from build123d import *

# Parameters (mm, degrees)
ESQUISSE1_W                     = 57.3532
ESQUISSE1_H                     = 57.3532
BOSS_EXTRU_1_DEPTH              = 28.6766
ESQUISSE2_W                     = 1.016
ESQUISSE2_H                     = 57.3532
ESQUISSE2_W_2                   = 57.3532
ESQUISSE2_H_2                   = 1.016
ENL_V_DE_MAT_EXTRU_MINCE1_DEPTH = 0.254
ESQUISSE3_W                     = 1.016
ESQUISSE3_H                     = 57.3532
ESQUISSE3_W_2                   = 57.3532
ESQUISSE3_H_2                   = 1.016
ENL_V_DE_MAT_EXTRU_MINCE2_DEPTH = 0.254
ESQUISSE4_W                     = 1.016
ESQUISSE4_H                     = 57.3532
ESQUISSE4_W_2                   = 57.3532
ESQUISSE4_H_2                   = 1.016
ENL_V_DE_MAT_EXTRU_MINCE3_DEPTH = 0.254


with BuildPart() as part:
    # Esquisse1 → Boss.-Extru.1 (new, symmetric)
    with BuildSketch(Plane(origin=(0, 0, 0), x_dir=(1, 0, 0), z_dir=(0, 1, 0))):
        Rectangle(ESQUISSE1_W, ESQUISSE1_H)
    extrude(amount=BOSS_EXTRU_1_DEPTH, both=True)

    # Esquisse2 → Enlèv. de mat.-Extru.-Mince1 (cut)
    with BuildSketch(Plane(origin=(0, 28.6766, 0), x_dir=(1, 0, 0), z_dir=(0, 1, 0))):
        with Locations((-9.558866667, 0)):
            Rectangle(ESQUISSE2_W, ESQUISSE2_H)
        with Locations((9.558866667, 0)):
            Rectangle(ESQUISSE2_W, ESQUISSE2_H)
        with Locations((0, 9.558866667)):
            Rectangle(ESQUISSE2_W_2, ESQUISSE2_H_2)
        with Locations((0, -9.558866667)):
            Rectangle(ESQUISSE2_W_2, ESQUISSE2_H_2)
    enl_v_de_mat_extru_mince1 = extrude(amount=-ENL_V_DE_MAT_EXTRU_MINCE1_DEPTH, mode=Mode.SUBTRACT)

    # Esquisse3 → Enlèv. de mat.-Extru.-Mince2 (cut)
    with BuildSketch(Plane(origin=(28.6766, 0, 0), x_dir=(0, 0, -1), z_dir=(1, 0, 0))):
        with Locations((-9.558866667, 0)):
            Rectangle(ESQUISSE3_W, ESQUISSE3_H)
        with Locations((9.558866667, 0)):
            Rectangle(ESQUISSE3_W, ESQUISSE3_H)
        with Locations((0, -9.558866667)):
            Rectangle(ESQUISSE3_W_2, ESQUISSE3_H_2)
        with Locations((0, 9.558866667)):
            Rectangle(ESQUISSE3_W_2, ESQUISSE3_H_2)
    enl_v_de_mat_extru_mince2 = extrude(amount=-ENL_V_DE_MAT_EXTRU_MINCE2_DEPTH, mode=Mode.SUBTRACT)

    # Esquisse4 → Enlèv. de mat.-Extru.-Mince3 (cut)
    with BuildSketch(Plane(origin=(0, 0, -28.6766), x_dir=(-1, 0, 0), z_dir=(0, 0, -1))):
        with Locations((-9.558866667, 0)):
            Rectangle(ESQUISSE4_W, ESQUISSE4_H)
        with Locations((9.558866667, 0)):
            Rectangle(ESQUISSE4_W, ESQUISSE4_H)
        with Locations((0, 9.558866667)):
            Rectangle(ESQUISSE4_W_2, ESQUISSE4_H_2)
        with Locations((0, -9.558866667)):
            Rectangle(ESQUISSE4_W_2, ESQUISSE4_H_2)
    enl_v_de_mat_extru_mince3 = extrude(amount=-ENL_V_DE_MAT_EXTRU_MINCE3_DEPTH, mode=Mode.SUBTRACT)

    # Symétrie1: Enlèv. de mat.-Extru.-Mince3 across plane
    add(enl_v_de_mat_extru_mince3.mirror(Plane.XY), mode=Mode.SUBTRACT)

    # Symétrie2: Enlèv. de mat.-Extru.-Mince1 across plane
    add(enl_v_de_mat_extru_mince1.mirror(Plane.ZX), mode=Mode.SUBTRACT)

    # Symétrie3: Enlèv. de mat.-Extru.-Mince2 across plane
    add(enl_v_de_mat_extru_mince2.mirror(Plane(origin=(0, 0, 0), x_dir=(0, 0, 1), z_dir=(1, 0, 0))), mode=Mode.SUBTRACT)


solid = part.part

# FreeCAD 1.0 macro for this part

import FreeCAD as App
import Part
import Sketcher
Q = App.Units.Quantity

doc = App.newDocument("Part")
body = doc.addObject("PartDesign::Body", "Body")

# Sketch on XZ plane
sketch1 = doc.addObject("Sketcher::SketchObject", "Sketch")
body.addObject(sketch1)
sketch1.AttachmentSupport = (doc.XZ_Plane, [""])
sketch1.MapMode = "FlatFace"
sketch1.addGeometry(Part.LineSegment(App.Vector(-29, -29, 0), App.Vector(-29, 29, 0)), False)
sketch1.addGeometry(Part.LineSegment(App.Vector(-29, 29, 0), App.Vector(29, 29, 0)), False)
sketch1.addGeometry(Part.LineSegment(App.Vector(29, 29, 0), App.Vector(29, -29, 0)), False)
sketch1.addGeometry(Part.LineSegment(App.Vector(29, -29, 0), App.Vector(-29, -29, 0)), False)
sketch1.addConstraint(Sketcher.Constraint("Coincident", 0, 2, 1, 1))
sketch1.addConstraint(Sketcher.Constraint("Coincident", 1, 2, 2, 1))
sketch1.addConstraint(Sketcher.Constraint("Coincident", 2, 2, 3, 1))
sketch1.addConstraint(Sketcher.Constraint("Coincident", 3, 2, 0, 1))
sketch1.addConstraint(Sketcher.Constraint("Vertical", 0))
sketch1.addConstraint(Sketcher.Constraint("Horizontal", 1))
sketch1.addConstraint(Sketcher.Constraint("Vertical", 2))
sketch1.addConstraint(Sketcher.Constraint("Horizontal", 3))
sketch1.addConstraint(Sketcher.Constraint("Symmetric", 0, 2, 2, 2, -1, 1))
sketch1.addConstraint(Sketcher.Constraint("Equal", 3, 0))
sketch1.addConstraint(Sketcher.Constraint("DistanceX", 1, 1, 1, 2, Q("2.258 in")))
pad1 = doc.addObject("PartDesign::Pad", "Pad")
body.addObject(pad1)
pad1.Profile = sketch1
pad1.Length = Q("2.258 in")
pad1.Midplane = True

# Sketch on XZ plane
sketch2 = doc.addObject("Sketcher::SketchObject", "Sketch001")
body.addObject(sketch2)
sketch2.AttachmentSupport = (doc.XZ_Plane, [""])
sketch2.MapMode = "FlatFace"
sketch2.AttachmentOffset = App.Placement(App.Vector(0, 0, -1.129 * 25.4), App.Rotation())
sketch2.addGeometry(Part.LineSegment(App.Vector(-10.1, 10.1, 0), App.Vector(-10.1, 28.7, 0)), False)
sketch2.addGeometry(Part.LineSegment(App.Vector(-10.1, 28.7, 0), App.Vector(-9.1, 28.7, 0)), False)
sketch2.addGeometry(Part.LineSegment(App.Vector(-9.1, 28.7, 0), App.Vector(-9.1, 10.1, 0)), False)
sketch2.addGeometry(Part.LineSegment(App.Vector(-9.1, 10.1, 0), App.Vector(9.1, 10.1, 0)), False)
sketch2.addGeometry(Part.LineSegment(App.Vector(9.1, 10.1, 0), App.Vector(9.1, 28.7, 0)), False)
sketch2.addGeometry(Part.LineSegment(App.Vector(9.1, 28.7, 0), App.Vector(10.1, 28.7, 0)), False)
sketch2.addGeometry(Part.LineSegment(App.Vector(10.1, 28.7, 0), App.Vector(10.1, 10.1, 0)), False)
sketch2.addGeometry(Part.LineSegment(App.Vector(10.1, 10.1, 0), App.Vector(28.7, 10.1, 0)), False)
sketch2.addGeometry(Part.LineSegment(App.Vector(28.7, 10.1, 0), App.Vector(28.7, 9.1, 0)), False)
sketch2.addGeometry(Part.LineSegment(App.Vector(28.7, 9.1, 0), App.Vector(10.1, 9.1, 0)), False)
sketch2.addGeometry(Part.LineSegment(App.Vector(10.1, 9.1, 0), App.Vector(10.1, -9.1, 0)), False)
sketch2.addGeometry(Part.LineSegment(App.Vector(10.1, -9.1, 0), App.Vector(28.7, -9.1, 0)), False)
sketch2.addGeometry(Part.LineSegment(App.Vector(28.7, -9.1, 0), App.Vector(28.7, -10.1, 0)), False)
sketch2.addGeometry(Part.LineSegment(App.Vector(28.7, -10.1, 0), App.Vector(10.1, -10.1, 0)), False)
sketch2.addGeometry(Part.LineSegment(App.Vector(10.1, -10.1, 0), App.Vector(10.1, -28.7, 0)), False)
sketch2.addGeometry(Part.LineSegment(App.Vector(10.1, -28.7, 0), App.Vector(9.1, -28.7, 0)), False)
sketch2.addGeometry(Part.LineSegment(App.Vector(9.1, -28.7, 0), App.Vector(9.1, -10.1, 0)), False)
sketch2.addGeometry(Part.LineSegment(App.Vector(9.1, -10.1, 0), App.Vector(-9.1, -10.1, 0)), False)
sketch2.addGeometry(Part.LineSegment(App.Vector(-9.1, -10.1, 0), App.Vector(-9.1, -28.7, 0)), False)
sketch2.addGeometry(Part.LineSegment(App.Vector(-9.1, -28.7, 0), App.Vector(-10.1, -28.7, 0)), False)
sketch2.addGeometry(Part.LineSegment(App.Vector(-10.1, -28.7, 0), App.Vector(-10.1, -10.1, 0)), False)
sketch2.addGeometry(Part.LineSegment(App.Vector(-10.1, -10.1, 0), App.Vector(-28.7, -10.1, 0)), False)
sketch2.addGeometry(Part.LineSegment(App.Vector(-28.7, -10.1, 0), App.Vector(-28.7, -9.1, 0)), False)
sketch2.addGeometry(Part.LineSegment(App.Vector(-28.7, -9.1, 0), App.Vector(-10.1, -9.1, 0)), False)
sketch2.addGeometry(Part.LineSegment(App.Vector(-10.1, -9.1, 0), App.Vector(-10.1, 9.1, 0)), False)
sketch2.addGeometry(Part.LineSegment(App.Vector(-10.1, 9.1, 0), App.Vector(-28.7, 9.1, 0)), False)
sketch2.addGeometry(Part.LineSegment(App.Vector(-28.7, 9.1, 0), App.Vector(-28.7, 10.1, 0)), False)
sketch2.addGeometry(Part.LineSegment(App.Vector(-28.7, 10.1, 0), App.Vector(-10.1, 10.1, 0)), False)
sketch2.addGeometry(Part.LineSegment(App.Vector(9.1, -9.1, 0), App.Vector(9.1, 9.1, 0)), False)
sketch2.addGeometry(Part.LineSegment(App.Vector(9.1, 9.1, 0), App.Vector(-9.1, 9.1, 0)), False)
sketch2.addGeometry(Part.LineSegment(App.Vector(-9.1, 9.1, 0), App.Vector(-9.1, -9.1, 0)), False)
sketch2.addGeometry(Part.LineSegment(App.Vector(-9.1, -9.1, 0), App.Vector(9.1, -9.1, 0)), False)
sketch2.addConstraint(Sketcher.Constraint("Coincident", 0, 2, 1, 1))
sketch2.addConstraint(Sketcher.Constraint("Coincident", 1, 2, 2, 1))
sketch2.addConstraint(Sketcher.Constraint("Coincident", 2, 2, 3, 1))
sketch2.addConstraint(Sketcher.Constraint("Coincident", 3, 2, 4, 1))
sketch2.addConstraint(Sketcher.Constraint("Coincident", 4, 2, 5, 1))
sketch2.addConstraint(Sketcher.Constraint("Coincident", 5, 2, 6, 1))
sketch2.addConstraint(Sketcher.Constraint("Coincident", 6, 2, 7, 1))
sketch2.addConstraint(Sketcher.Constraint("Coincident", 7, 2, 8, 1))
sketch2.addConstraint(Sketcher.Constraint("Coincident", 8, 2, 9, 1))
sketch2.addConstraint(Sketcher.Constraint("Coincident", 9, 2, 10, 1))
sketch2.addConstraint(Sketcher.Constraint("Coincident", 10, 2, 11, 1))
sketch2.addConstraint(Sketcher.Constraint("Coincident", 11, 2, 12, 1))
sketch2.addConstraint(Sketcher.Constraint("Coincident", 12, 2, 13, 1))
sketch2.addConstraint(Sketcher.Constraint("Coincident", 13, 2, 14, 1))
sketch2.addConstraint(Sketcher.Constraint("Coincident", 14, 2, 15, 1))
sketch2.addConstraint(Sketcher.Constraint("Coincident", 15, 2, 16, 1))
sketch2.addConstraint(Sketcher.Constraint("Coincident", 16, 2, 17, 1))
sketch2.addConstraint(Sketcher.Constraint("Coincident", 17, 2, 18, 1))
sketch2.addConstraint(Sketcher.Constraint("Coincident", 18, 2, 19, 1))
sketch2.addConstraint(Sketcher.Constraint("Coincident", 19, 2, 20, 1))
sketch2.addConstraint(Sketcher.Constraint("Coincident", 20, 2, 21, 1))
sketch2.addConstraint(Sketcher.Constraint("Coincident", 21, 2, 22, 1))
sketch2.addConstraint(Sketcher.Constraint("Coincident", 22, 2, 23, 1))
sketch2.addConstraint(Sketcher.Constraint("Coincident", 23, 2, 24, 1))
sketch2.addConstraint(Sketcher.Constraint("Coincident", 24, 2, 25, 1))
sketch2.addConstraint(Sketcher.Constraint("Coincident", 25, 2, 26, 1))
sketch2.addConstraint(Sketcher.Constraint("Coincident", 26, 2, 27, 1))
sketch2.addConstraint(Sketcher.Constraint("Coincident", 27, 2, 0, 1))
sketch2.addConstraint(Sketcher.Constraint("Coincident", 28, 2, 29, 1))
sketch2.addConstraint(Sketcher.Constraint("Coincident", 29, 2, 30, 1))
sketch2.addConstraint(Sketcher.Constraint("Coincident", 30, 2, 31, 1))
sketch2.addConstraint(Sketcher.Constraint("Coincident", 31, 2, 28, 1))
sketch2.addConstraint(Sketcher.Constraint("Vertical", 0))
sketch2.addConstraint(Sketcher.Constraint("Horizontal", 1))
sketch2.addConstraint(Sketcher.Constraint("Vertical", 2))
sketch2.addConstraint(Sketcher.Constraint("Horizontal", 3))
sketch2.addConstraint(Sketcher.Constraint("Vertical", 4))
sketch2.addConstraint(Sketcher.Constraint("Horizontal", 5))
sketch2.addConstraint(Sketcher.Constraint("Vertical", 6))
sketch2.addConstraint(Sketcher.Constraint("Horizontal", 7))
sketch2.addConstraint(Sketcher.Constraint("Vertical", 8))
sketch2.addConstraint(Sketcher.Constraint("Horizontal", 9))
sketch2.addConstraint(Sketcher.Constraint("Vertical", 10))
sketch2.addConstraint(Sketcher.Constraint("Horizontal", 11))
sketch2.addConstraint(Sketcher.Constraint("Vertical", 12))
sketch2.addConstraint(Sketcher.Constraint("Horizontal", 13))
sketch2.addConstraint(Sketcher.Constraint("Vertical", 14))
sketch2.addConstraint(Sketcher.Constraint("Horizontal", 15))
sketch2.addConstraint(Sketcher.Constraint("Vertical", 16))
sketch2.addConstraint(Sketcher.Constraint("Horizontal", 17))
sketch2.addConstraint(Sketcher.Constraint("Vertical", 18))
sketch2.addConstraint(Sketcher.Constraint("Horizontal", 19))
sketch2.addConstraint(Sketcher.Constraint("Vertical", 20))
sketch2.addConstraint(Sketcher.Constraint("Horizontal", 21))
sketch2.addConstraint(Sketcher.Constraint("Vertical", 22))
sketch2.addConstraint(Sketcher.Constraint("Horizontal", 23))
sketch2.addConstraint(Sketcher.Constraint("Vertical", 24))
sketch2.addConstraint(Sketcher.Constraint("Horizontal", 25))
sketch2.addConstraint(Sketcher.Constraint("Vertical", 26))
sketch2.addConstraint(Sketcher.Constraint("Horizontal", 27))
sketch2.addConstraint(Sketcher.Constraint("Vertical", 28))
sketch2.addConstraint(Sketcher.Constraint("Horizontal", 29))
sketch2.addConstraint(Sketcher.Constraint("Vertical", 30))
sketch2.addConstraint(Sketcher.Constraint("Horizontal", 31))
sketch2.addConstraint(Sketcher.Constraint("Symmetric", 0, 2, 14, 2, -1, 1))
sketch2.addConstraint(Sketcher.Constraint("Symmetric", 2, 2, 16, 2, -1, 1))
sketch2.addConstraint(Sketcher.Constraint("Symmetric", 4, 2, 18, 2, -1, 1))
sketch2.addConstraint(Sketcher.Constraint("Symmetric", 6, 2, 20, 2, -1, 1))
sketch2.addConstraint(Sketcher.Constraint("Symmetric", 8, 2, 22, 2, -1, 1))
sketch2.addConstraint(Sketcher.Constraint("Symmetric", 10, 2, 24, 2, -1, 1))
sketch2.addConstraint(Sketcher.Constraint("Symmetric", 12, 2, 26, 2, -1, 1))
sketch2.addConstraint(Sketcher.Constraint("Symmetric", 28, 2, 30, 2, -1, 1))
sketch2.addConstraint(Sketcher.Constraint("Symmetric", 1, 2, 4, 2, -2))
sketch2.addConstraint(Sketcher.Constraint("Symmetric", 13, 2, 20, 2, -2))
sketch2.addConstraint(Sketcher.Constraint("Symmetric", 11, 2, 22, 2, -2))
sketch2.addConstraint(Sketcher.Constraint("Horizontal", 3, 2, 6, 2))
sketch2.addConstraint(Sketcher.Constraint("Horizontal", 25, 2, 28, 2))
sketch2.addConstraint(Sketcher.Constraint("Vertical", 6, 2, 9, 2))
sketch2.addConstraint(Sketcher.Constraint("Vertical", 16, 2, 28, 2))
sketch2.addConstraint(Sketcher.Constraint("Equal", 27, 0))
sketch2.addConstraint(Sketcher.Constraint("Equal", 19, 8))
sketch2.addConstraint(Sketcher.Constraint("Equal", 31, 10))
sketch2.addConstraint(Sketcher.Constraint("DistanceX", 1, 1, 1, 2, Q("0.04 in")))
sketch2.addConstraint(Sketcher.Constraint("DistanceY", -1, 1, 0, 2, Q("1.129 in")))
sketch2.addConstraint(Sketcher.Constraint("DistanceX", 3, 1, 3, 2, Q("18.101733 mm")))
pocket1 = doc.addObject("PartDesign::Pocket", "Pocket")
body.addObject(pocket1)
pocket1.Profile = sketch2
pocket1.Length = Q("0.01 in")
pocket1.Reversed = True

# Sketch on YZ plane
sketch3 = doc.addObject("Sketcher::SketchObject", "Sketch002")
body.addObject(sketch3)
sketch3.AttachmentSupport = (doc.YZ_Plane, [""])
sketch3.MapMode = "FlatFace"
sketch3.AttachmentOffset = App.Placement(App.Vector(0, 0, 1.129 * 25.4), App.Rotation())
sketch3.addGeometry(Part.LineSegment(App.Vector(-10.1, 10.1, 0), App.Vector(-28.7, 10.1, 0)), False)
sketch3.addGeometry(Part.LineSegment(App.Vector(-28.7, 10.1, 0), App.Vector(-28.7, 9.1, 0)), False)
sketch3.addGeometry(Part.LineSegment(App.Vector(-28.7, 9.1, 0), App.Vector(-10.1, 9.1, 0)), False)
sketch3.addGeometry(Part.LineSegment(App.Vector(-10.1, 9.1, 0), App.Vector(-10.1, -9.1, 0)), False)
sketch3.addGeometry(Part.LineSegment(App.Vector(-10.1, -9.1, 0), App.Vector(-28.7, -9.1, 0)), False)
sketch3.addGeometry(Part.LineSegment(App.Vector(-28.7, -9.1, 0), App.Vector(-28.7, -10.1, 0)), False)
sketch3.addGeometry(Part.LineSegment(App.Vector(-28.7, -10.1, 0), App.Vector(-10.1, -10.1, 0)), False)
sketch3.addGeometry(Part.LineSegment(App.Vector(-10.1, -10.1, 0), App.Vector(-10.1, -28.7, 0)), False)
sketch3.addGeometry(Part.LineSegment(App.Vector(-10.1, -28.7, 0), App.Vector(-9.1, -28.7, 0)), False)
sketch3.addGeometry(Part.LineSegment(App.Vector(-9.1, -28.7, 0), App.Vector(-9.1, -10.1, 0)), False)
sketch3.addGeometry(Part.LineSegment(App.Vector(-9.1, -10.1, 0), App.Vector(9.1, -10.1, 0)), False)
sketch3.addGeometry(Part.LineSegment(App.Vector(9.1, -10.1, 0), App.Vector(9.1, -28.7, 0)), False)
sketch3.addGeometry(Part.LineSegment(App.Vector(9.1, -28.7, 0), App.Vector(10.1, -28.7, 0)), False)
sketch3.addGeometry(Part.LineSegment(App.Vector(10.1, -28.7, 0), App.Vector(10.1, -10.1, 0)), False)
sketch3.addGeometry(Part.LineSegment(App.Vector(10.1, -10.1, 0), App.Vector(28.7, -10.1, 0)), False)
sketch3.addGeometry(Part.LineSegment(App.Vector(28.7, -10.1, 0), App.Vector(28.7, -9.1, 0)), False)
sketch3.addGeometry(Part.LineSegment(App.Vector(28.7, -9.1, 0), App.Vector(10.1, -9.1, 0)), False)
sketch3.addGeometry(Part.LineSegment(App.Vector(10.1, -9.1, 0), App.Vector(10.1, 9.1, 0)), False)
sketch3.addGeometry(Part.LineSegment(App.Vector(10.1, 9.1, 0), App.Vector(28.7, 9.1, 0)), False)
sketch3.addGeometry(Part.LineSegment(App.Vector(28.7, 9.1, 0), App.Vector(28.7, 10.1, 0)), False)
sketch3.addGeometry(Part.LineSegment(App.Vector(28.7, 10.1, 0), App.Vector(10.1, 10.1, 0)), False)
sketch3.addGeometry(Part.LineSegment(App.Vector(10.1, 10.1, 0), App.Vector(10.1, 28.7, 0)), False)
sketch3.addGeometry(Part.LineSegment(App.Vector(10.1, 28.7, 0), App.Vector(9.1, 28.7, 0)), False)
sketch3.addGeometry(Part.LineSegment(App.Vector(9.1, 28.7, 0), App.Vector(9.1, 10.1, 0)), False)
sketch3.addGeometry(Part.LineSegment(App.Vector(9.1, 10.1, 0), App.Vector(-9.1, 10.1, 0)), False)
sketch3.addGeometry(Part.LineSegment(App.Vector(-9.1, 10.1, 0), App.Vector(-9.1, 28.7, 0)), False)
sketch3.addGeometry(Part.LineSegment(App.Vector(-9.1, 28.7, 0), App.Vector(-10.1, 28.7, 0)), False)
sketch3.addGeometry(Part.LineSegment(App.Vector(-10.1, 28.7, 0), App.Vector(-10.1, 10.1, 0)), False)
sketch3.addGeometry(Part.LineSegment(App.Vector(-9.1, 9.1, 0), App.Vector(9.1, 9.1, 0)), False)
sketch3.addGeometry(Part.LineSegment(App.Vector(9.1, 9.1, 0), App.Vector(9.1, -9.1, 0)), False)
sketch3.addGeometry(Part.LineSegment(App.Vector(9.1, -9.1, 0), App.Vector(-9.1, -9.1, 0)), False)
sketch3.addGeometry(Part.LineSegment(App.Vector(-9.1, -9.1, 0), App.Vector(-9.1, 9.1, 0)), False)
sketch3.addConstraint(Sketcher.Constraint("Coincident", 0, 2, 1, 1))
sketch3.addConstraint(Sketcher.Constraint("Coincident", 1, 2, 2, 1))
sketch3.addConstraint(Sketcher.Constraint("Coincident", 2, 2, 3, 1))
sketch3.addConstraint(Sketcher.Constraint("Coincident", 3, 2, 4, 1))
sketch3.addConstraint(Sketcher.Constraint("Coincident", 4, 2, 5, 1))
sketch3.addConstraint(Sketcher.Constraint("Coincident", 5, 2, 6, 1))
sketch3.addConstraint(Sketcher.Constraint("Coincident", 6, 2, 7, 1))
sketch3.addConstraint(Sketcher.Constraint("Coincident", 7, 2, 8, 1))
sketch3.addConstraint(Sketcher.Constraint("Coincident", 8, 2, 9, 1))
sketch3.addConstraint(Sketcher.Constraint("Coincident", 9, 2, 10, 1))
sketch3.addConstraint(Sketcher.Constraint("Coincident", 10, 2, 11, 1))
sketch3.addConstraint(Sketcher.Constraint("Coincident", 11, 2, 12, 1))
sketch3.addConstraint(Sketcher.Constraint("Coincident", 12, 2, 13, 1))
sketch3.addConstraint(Sketcher.Constraint("Coincident", 13, 2, 14, 1))
sketch3.addConstraint(Sketcher.Constraint("Coincident", 14, 2, 15, 1))
sketch3.addConstraint(Sketcher.Constraint("Coincident", 15, 2, 16, 1))
sketch3.addConstraint(Sketcher.Constraint("Coincident", 16, 2, 17, 1))
sketch3.addConstraint(Sketcher.Constraint("Coincident", 17, 2, 18, 1))
sketch3.addConstraint(Sketcher.Constraint("Coincident", 18, 2, 19, 1))
sketch3.addConstraint(Sketcher.Constraint("Coincident", 19, 2, 20, 1))
sketch3.addConstraint(Sketcher.Constraint("Coincident", 20, 2, 21, 1))
sketch3.addConstraint(Sketcher.Constraint("Coincident", 21, 2, 22, 1))
sketch3.addConstraint(Sketcher.Constraint("Coincident", 22, 2, 23, 1))
sketch3.addConstraint(Sketcher.Constraint("Coincident", 23, 2, 24, 1))
sketch3.addConstraint(Sketcher.Constraint("Coincident", 24, 2, 25, 1))
sketch3.addConstraint(Sketcher.Constraint("Coincident", 25, 2, 26, 1))
sketch3.addConstraint(Sketcher.Constraint("Coincident", 26, 2, 27, 1))
sketch3.addConstraint(Sketcher.Constraint("Coincident", 27, 2, 0, 1))
sketch3.addConstraint(Sketcher.Constraint("Coincident", 28, 2, 29, 1))
sketch3.addConstraint(Sketcher.Constraint("Coincident", 29, 2, 30, 1))
sketch3.addConstraint(Sketcher.Constraint("Coincident", 30, 2, 31, 1))
sketch3.addConstraint(Sketcher.Constraint("Coincident", 31, 2, 28, 1))
sketch3.addConstraint(Sketcher.Constraint("Horizontal", 0))
sketch3.addConstraint(Sketcher.Constraint("Vertical", 1))
sketch3.addConstraint(Sketcher.Constraint("Horizontal", 2))
sketch3.addConstraint(Sketcher.Constraint("Vertical", 3))
sketch3.addConstraint(Sketcher.Constraint("Horizontal", 4))
sketch3.addConstraint(Sketcher.Constraint("Vertical", 5))
sketch3.addConstraint(Sketcher.Constraint("Horizontal", 6))
sketch3.addConstraint(Sketcher.Constraint("Vertical", 7))
sketch3.addConstraint(Sketcher.Constraint("Horizontal", 8))
sketch3.addConstraint(Sketcher.Constraint("Vertical", 9))
sketch3.addConstraint(Sketcher.Constraint("Horizontal", 10))
sketch3.addConstraint(Sketcher.Constraint("Vertical", 11))
sketch3.addConstraint(Sketcher.Constraint("Horizontal", 12))
sketch3.addConstraint(Sketcher.Constraint("Vertical", 13))
sketch3.addConstraint(Sketcher.Constraint("Horizontal", 14))
sketch3.addConstraint(Sketcher.Constraint("Vertical", 15))
sketch3.addConstraint(Sketcher.Constraint("Horizontal", 16))
sketch3.addConstraint(Sketcher.Constraint("Vertical", 17))
sketch3.addConstraint(Sketcher.Constraint("Horizontal", 18))
sketch3.addConstraint(Sketcher.Constraint("Vertical", 19))
sketch3.addConstraint(Sketcher.Constraint("Horizontal", 20))
sketch3.addConstraint(Sketcher.Constraint("Vertical", 21))
sketch3.addConstraint(Sketcher.Constraint("Horizontal", 22))
sketch3.addConstraint(Sketcher.Constraint("Vertical", 23))
sketch3.addConstraint(Sketcher.Constraint("Horizontal", 24))
sketch3.addConstraint(Sketcher.Constraint("Vertical", 25))
sketch3.addConstraint(Sketcher.Constraint("Horizontal", 26))
sketch3.addConstraint(Sketcher.Constraint("Vertical", 27))
sketch3.addConstraint(Sketcher.Constraint("Horizontal", 28))
sketch3.addConstraint(Sketcher.Constraint("Vertical", 29))
sketch3.addConstraint(Sketcher.Constraint("Horizontal", 30))
sketch3.addConstraint(Sketcher.Constraint("Vertical", 31))
sketch3.addConstraint(Sketcher.Constraint("Symmetric", 0, 2, 14, 2, -1, 1))
sketch3.addConstraint(Sketcher.Constraint("Symmetric", 2, 2, 16, 2, -1, 1))
sketch3.addConstraint(Sketcher.Constraint("Symmetric", 4, 2, 18, 2, -1, 1))
sketch3.addConstraint(Sketcher.Constraint("Symmetric", 6, 2, 20, 2, -1, 1))
sketch3.addConstraint(Sketcher.Constraint("Symmetric", 8, 2, 22, 2, -1, 1))
sketch3.addConstraint(Sketcher.Constraint("Symmetric", 10, 2, 24, 2, -1, 1))
sketch3.addConstraint(Sketcher.Constraint("Symmetric", 12, 2, 26, 2, -1, 1))
sketch3.addConstraint(Sketcher.Constraint("Symmetric", 28, 2, 30, 2, -1, 1))
sketch3.addConstraint(Sketcher.Constraint("Symmetric", 8, 2, 11, 2, -2))
sketch3.addConstraint(Sketcher.Constraint("Symmetric", 6, 2, 13, 2, -2))
sketch3.addConstraint(Sketcher.Constraint("Symmetric", 4, 2, 15, 2, -2))
sketch3.addConstraint(Sketcher.Constraint("Horizontal", 6, 2, 9, 2))
sketch3.addConstraint(Sketcher.Constraint("Horizontal", 18, 2, 28, 2))
sketch3.addConstraint(Sketcher.Constraint("Vertical", 3, 2, 6, 2))
sketch3.addConstraint(Sketcher.Constraint("Vertical", 23, 2, 28, 2))
sketch3.addConstraint(Sketcher.Constraint("Equal", 26, 1))
sketch3.addConstraint(Sketcher.Constraint("Equal", 30, 3))
sketch3.addConstraint(Sketcher.Constraint("Equal", 20, 7))
sketch3.addConstraint(Sketcher.Constraint("DistanceX", 8, 1, 8, 2, Q("0.04 in")))
sketch3.addConstraint(Sketcher.Constraint("DistanceX", 0, 2, -1, 1, Q("1.129 in")))
sketch3.addConstraint(Sketcher.Constraint("DistanceX", 0, 2, 0, 1, Q("18.609733 mm")))
pocket2 = doc.addObject("PartDesign::Pocket", "Pocket001")
body.addObject(pocket2)
pocket2.Profile = sketch3
pocket2.Length = Q("0.01 in")

# Sketch on XY plane
sketch4 = doc.addObject("Sketcher::SketchObject", "Sketch003")
body.addObject(sketch4)
sketch4.AttachmentSupport = (doc.XY_Plane, [""])
sketch4.MapMode = "FlatFace"
sketch4.AttachmentOffset = App.Placement(App.Vector(0, 0, -1.129 * 25.4), App.Rotation())
sketch4.addGeometry(Part.LineSegment(App.Vector(10.1, -10.1, 0), App.Vector(10.1, -28.7, 0)), False)
sketch4.addGeometry(Part.LineSegment(App.Vector(10.1, -28.7, 0), App.Vector(9.1, -28.7, 0)), False)
sketch4.addGeometry(Part.LineSegment(App.Vector(9.1, -28.7, 0), App.Vector(9.1, -10.1, 0)), False)
sketch4.addGeometry(Part.LineSegment(App.Vector(9.1, -10.1, 0), App.Vector(-9.1, -10.1, 0)), False)
sketch4.addGeometry(Part.LineSegment(App.Vector(-9.1, -10.1, 0), App.Vector(-9.1, -28.7, 0)), False)
sketch4.addGeometry(Part.LineSegment(App.Vector(-9.1, -28.7, 0), App.Vector(-10.1, -28.7, 0)), False)
sketch4.addGeometry(Part.LineSegment(App.Vector(-10.1, -28.7, 0), App.Vector(-10.1, -10.1, 0)), False)
sketch4.addGeometry(Part.LineSegment(App.Vector(-10.1, -10.1, 0), App.Vector(-28.7, -10.1, 0)), False)
sketch4.addGeometry(Part.LineSegment(App.Vector(-28.7, -10.1, 0), App.Vector(-28.7, -9.1, 0)), False)
sketch4.addGeometry(Part.LineSegment(App.Vector(-28.7, -9.1, 0), App.Vector(-10.1, -9.1, 0)), False)
sketch4.addGeometry(Part.LineSegment(App.Vector(-10.1, -9.1, 0), App.Vector(-10.1, 9.1, 0)), False)
sketch4.addGeometry(Part.LineSegment(App.Vector(-10.1, 9.1, 0), App.Vector(-28.7, 9.1, 0)), False)
sketch4.addGeometry(Part.LineSegment(App.Vector(-28.7, 9.1, 0), App.Vector(-28.7, 10.1, 0)), False)
sketch4.addGeometry(Part.LineSegment(App.Vector(-28.7, 10.1, 0), App.Vector(-10.1, 10.1, 0)), False)
sketch4.addGeometry(Part.LineSegment(App.Vector(-10.1, 10.1, 0), App.Vector(-10.1, 28.7, 0)), False)
sketch4.addGeometry(Part.LineSegment(App.Vector(-10.1, 28.7, 0), App.Vector(-9.1, 28.7, 0)), False)
sketch4.addGeometry(Part.LineSegment(App.Vector(-9.1, 28.7, 0), App.Vector(-9.1, 10.1, 0)), False)
sketch4.addGeometry(Part.LineSegment(App.Vector(-9.1, 10.1, 0), App.Vector(9.1, 10.1, 0)), False)
sketch4.addGeometry(Part.LineSegment(App.Vector(9.1, 10.1, 0), App.Vector(9.1, 28.7, 0)), False)
sketch4.addGeometry(Part.LineSegment(App.Vector(9.1, 28.7, 0), App.Vector(10.1, 28.7, 0)), False)
sketch4.addGeometry(Part.LineSegment(App.Vector(10.1, 28.7, 0), App.Vector(10.1, 10.1, 0)), False)
sketch4.addGeometry(Part.LineSegment(App.Vector(10.1, 10.1, 0), App.Vector(28.7, 10.1, 0)), False)
sketch4.addGeometry(Part.LineSegment(App.Vector(28.7, 10.1, 0), App.Vector(28.7, 9.1, 0)), False)
sketch4.addGeometry(Part.LineSegment(App.Vector(28.7, 9.1, 0), App.Vector(10.1, 9.1, 0)), False)
sketch4.addGeometry(Part.LineSegment(App.Vector(10.1, 9.1, 0), App.Vector(10.1, -9.1, 0)), False)
sketch4.addGeometry(Part.LineSegment(App.Vector(10.1, -9.1, 0), App.Vector(28.7, -9.1, 0)), False)
sketch4.addGeometry(Part.LineSegment(App.Vector(28.7, -9.1, 0), App.Vector(28.7, -10.1, 0)), False)
sketch4.addGeometry(Part.LineSegment(App.Vector(28.7, -10.1, 0), App.Vector(10.1, -10.1, 0)), False)
sketch4.addGeometry(Part.LineSegment(App.Vector(-9.1, 9.1, 0), App.Vector(-9.1, -9.1, 0)), False)
sketch4.addGeometry(Part.LineSegment(App.Vector(-9.1, -9.1, 0), App.Vector(9.1, -9.1, 0)), False)
sketch4.addGeometry(Part.LineSegment(App.Vector(9.1, -9.1, 0), App.Vector(9.1, 9.1, 0)), False)
sketch4.addGeometry(Part.LineSegment(App.Vector(9.1, 9.1, 0), App.Vector(-9.1, 9.1, 0)), False)
sketch4.addConstraint(Sketcher.Constraint("Coincident", 0, 2, 1, 1))
sketch4.addConstraint(Sketcher.Constraint("Coincident", 1, 2, 2, 1))
sketch4.addConstraint(Sketcher.Constraint("Coincident", 2, 2, 3, 1))
sketch4.addConstraint(Sketcher.Constraint("Coincident", 3, 2, 4, 1))
sketch4.addConstraint(Sketcher.Constraint("Coincident", 4, 2, 5, 1))
sketch4.addConstraint(Sketcher.Constraint("Coincident", 5, 2, 6, 1))
sketch4.addConstraint(Sketcher.Constraint("Coincident", 6, 2, 7, 1))
sketch4.addConstraint(Sketcher.Constraint("Coincident", 7, 2, 8, 1))
sketch4.addConstraint(Sketcher.Constraint("Coincident", 8, 2, 9, 1))
sketch4.addConstraint(Sketcher.Constraint("Coincident", 9, 2, 10, 1))
sketch4.addConstraint(Sketcher.Constraint("Coincident", 10, 2, 11, 1))
sketch4.addConstraint(Sketcher.Constraint("Coincident", 11, 2, 12, 1))
sketch4.addConstraint(Sketcher.Constraint("Coincident", 12, 2, 13, 1))
sketch4.addConstraint(Sketcher.Constraint("Coincident", 13, 2, 14, 1))
sketch4.addConstraint(Sketcher.Constraint("Coincident", 14, 2, 15, 1))
sketch4.addConstraint(Sketcher.Constraint("Coincident", 15, 2, 16, 1))
sketch4.addConstraint(Sketcher.Constraint("Coincident", 16, 2, 17, 1))
sketch4.addConstraint(Sketcher.Constraint("Coincident", 17, 2, 18, 1))
sketch4.addConstraint(Sketcher.Constraint("Coincident", 18, 2, 19, 1))
sketch4.addConstraint(Sketcher.Constraint("Coincident", 19, 2, 20, 1))
sketch4.addConstraint(Sketcher.Constraint("Coincident", 20, 2, 21, 1))
sketch4.addConstraint(Sketcher.Constraint("Coincident", 21, 2, 22, 1))
sketch4.addConstraint(Sketcher.Constraint("Coincident", 22, 2, 23, 1))
sketch4.addConstraint(Sketcher.Constraint("Coincident", 23, 2, 24, 1))
sketch4.addConstraint(Sketcher.Constraint("Coincident", 24, 2, 25, 1))
sketch4.addConstraint(Sketcher.Constraint("Coincident", 25, 2, 26, 1))
sketch4.addConstraint(Sketcher.Constraint("Coincident", 26, 2, 27, 1))
sketch4.addConstraint(Sketcher.Constraint("Coincident", 27, 2, 0, 1))
sketch4.addConstraint(Sketcher.Constraint("Coincident", 28, 2, 29, 1))
sketch4.addConstraint(Sketcher.Constraint("Coincident", 29, 2, 30, 1))
sketch4.addConstraint(Sketcher.Constraint("Coincident", 30, 2, 31, 1))
sketch4.addConstraint(Sketcher.Constraint("Coincident", 31, 2, 28, 1))
sketch4.addConstraint(Sketcher.Constraint("Vertical", 0))
sketch4.addConstraint(Sketcher.Constraint("Horizontal", 1))
sketch4.addConstraint(Sketcher.Constraint("Vertical", 2))
sketch4.addConstraint(Sketcher.Constraint("Horizontal", 3))
sketch4.addConstraint(Sketcher.Constraint("Vertical", 4))
sketch4.addConstraint(Sketcher.Constraint("Horizontal", 5))
sketch4.addConstraint(Sketcher.Constraint("Vertical", 6))
sketch4.addConstraint(Sketcher.Constraint("Horizontal", 7))
sketch4.addConstraint(Sketcher.Constraint("Vertical", 8))
sketch4.addConstraint(Sketcher.Constraint("Horizontal", 9))
sketch4.addConstraint(Sketcher.Constraint("Vertical", 10))
sketch4.addConstraint(Sketcher.Constraint("Horizontal", 11))
sketch4.addConstraint(Sketcher.Constraint("Vertical", 12))
sketch4.addConstraint(Sketcher.Constraint("Horizontal", 13))
sketch4.addConstraint(Sketcher.Constraint("Vertical", 14))
sketch4.addConstraint(Sketcher.Constraint("Horizontal", 15))
sketch4.addConstraint(Sketcher.Constraint("Vertical", 16))
sketch4.addConstraint(Sketcher.Constraint("Horizontal", 17))
sketch4.addConstraint(Sketcher.Constraint("Vertical", 18))
sketch4.addConstraint(Sketcher.Constraint("Horizontal", 19))
sketch4.addConstraint(Sketcher.Constraint("Vertical", 20))
sketch4.addConstraint(Sketcher.Constraint("Horizontal", 21))
sketch4.addConstraint(Sketcher.Constraint("Vertical", 22))
sketch4.addConstraint(Sketcher.Constraint("Horizontal", 23))
sketch4.addConstraint(Sketcher.Constraint("Vertical", 24))
sketch4.addConstraint(Sketcher.Constraint("Horizontal", 25))
sketch4.addConstraint(Sketcher.Constraint("Vertical", 26))
sketch4.addConstraint(Sketcher.Constraint("Horizontal", 27))
sketch4.addConstraint(Sketcher.Constraint("Vertical", 28))
sketch4.addConstraint(Sketcher.Constraint("Horizontal", 29))
sketch4.addConstraint(Sketcher.Constraint("Vertical", 30))
sketch4.addConstraint(Sketcher.Constraint("Horizontal", 31))
sketch4.addConstraint(Sketcher.Constraint("Symmetric", 0, 2, 14, 2, -1, 1))
sketch4.addConstraint(Sketcher.Constraint("Symmetric", 2, 2, 16, 2, -1, 1))
sketch4.addConstraint(Sketcher.Constraint("Symmetric", 4, 2, 18, 2, -1, 1))
sketch4.addConstraint(Sketcher.Constraint("Symmetric", 6, 2, 20, 2, -1, 1))
sketch4.addConstraint(Sketcher.Constraint("Symmetric", 8, 2, 22, 2, -1, 1))
sketch4.addConstraint(Sketcher.Constraint("Symmetric", 10, 2, 24, 2, -1, 1))
sketch4.addConstraint(Sketcher.Constraint("Symmetric", 12, 2, 26, 2, -1, 1))
sketch4.addConstraint(Sketcher.Constraint("Symmetric", 28, 2, 30, 2, -1, 1))
sketch4.addConstraint(Sketcher.Constraint("Symmetric", 1, 2, 4, 2, -2))
sketch4.addConstraint(Sketcher.Constraint("Symmetric", 13, 2, 20, 2, -2))
sketch4.addConstraint(Sketcher.Constraint("Symmetric", 11, 2, 22, 2, -2))
sketch4.addConstraint(Sketcher.Constraint("Horizontal", 3, 2, 6, 2))
sketch4.addConstraint(Sketcher.Constraint("Horizontal", 25, 2, 28, 2))
sketch4.addConstraint(Sketcher.Constraint("Vertical", 6, 2, 9, 2))
sketch4.addConstraint(Sketcher.Constraint("Vertical", 16, 2, 28, 2))
sketch4.addConstraint(Sketcher.Constraint("Equal", 27, 0))
sketch4.addConstraint(Sketcher.Constraint("Equal", 19, 8))
sketch4.addConstraint(Sketcher.Constraint("Equal", 31, 10))
sketch4.addConstraint(Sketcher.Constraint("DistanceX", 1, 2, 1, 1, Q("0.04 in")))
sketch4.addConstraint(Sketcher.Constraint("DistanceY", 0, 2, -1, 1, Q("1.129 in")))
sketch4.addConstraint(Sketcher.Constraint("DistanceX", 3, 2, 3, 1, Q("18.101733 mm")))
pocket3 = doc.addObject("PartDesign::Pocket", "Pocket002")
body.addObject(pocket3)
pocket3.Profile = sketch4
pocket3.Length = Q("0.01 in")
pocket3.Reversed = True
doc.recompute()

mirrored = doc.addObject("PartDesign::Mirrored", "Mirrored")
body.addObject(mirrored)
mirrored.Originals = [pocket3]
mirrored.MirrorPlane = (doc.XY_Plane, [""])
body.Tip = mirrored
doc.recompute()

mirrored2 = doc.addObject("PartDesign::Mirrored", "Mirrored001")
body.addObject(mirrored2)
mirrored2.Originals = [pocket1]
mirrored2.MirrorPlane = (doc.XZ_Plane, [""])
body.Tip = mirrored2
doc.recompute()

mirrored3 = doc.addObject("PartDesign::Mirrored", "Mirrored002")
body.addObject(mirrored3)
mirrored3.Originals = [pocket2]
mirrored3.MirrorPlane = (doc.YZ_Plane, [""])
body.Tip = mirrored3

doc.recompute()
